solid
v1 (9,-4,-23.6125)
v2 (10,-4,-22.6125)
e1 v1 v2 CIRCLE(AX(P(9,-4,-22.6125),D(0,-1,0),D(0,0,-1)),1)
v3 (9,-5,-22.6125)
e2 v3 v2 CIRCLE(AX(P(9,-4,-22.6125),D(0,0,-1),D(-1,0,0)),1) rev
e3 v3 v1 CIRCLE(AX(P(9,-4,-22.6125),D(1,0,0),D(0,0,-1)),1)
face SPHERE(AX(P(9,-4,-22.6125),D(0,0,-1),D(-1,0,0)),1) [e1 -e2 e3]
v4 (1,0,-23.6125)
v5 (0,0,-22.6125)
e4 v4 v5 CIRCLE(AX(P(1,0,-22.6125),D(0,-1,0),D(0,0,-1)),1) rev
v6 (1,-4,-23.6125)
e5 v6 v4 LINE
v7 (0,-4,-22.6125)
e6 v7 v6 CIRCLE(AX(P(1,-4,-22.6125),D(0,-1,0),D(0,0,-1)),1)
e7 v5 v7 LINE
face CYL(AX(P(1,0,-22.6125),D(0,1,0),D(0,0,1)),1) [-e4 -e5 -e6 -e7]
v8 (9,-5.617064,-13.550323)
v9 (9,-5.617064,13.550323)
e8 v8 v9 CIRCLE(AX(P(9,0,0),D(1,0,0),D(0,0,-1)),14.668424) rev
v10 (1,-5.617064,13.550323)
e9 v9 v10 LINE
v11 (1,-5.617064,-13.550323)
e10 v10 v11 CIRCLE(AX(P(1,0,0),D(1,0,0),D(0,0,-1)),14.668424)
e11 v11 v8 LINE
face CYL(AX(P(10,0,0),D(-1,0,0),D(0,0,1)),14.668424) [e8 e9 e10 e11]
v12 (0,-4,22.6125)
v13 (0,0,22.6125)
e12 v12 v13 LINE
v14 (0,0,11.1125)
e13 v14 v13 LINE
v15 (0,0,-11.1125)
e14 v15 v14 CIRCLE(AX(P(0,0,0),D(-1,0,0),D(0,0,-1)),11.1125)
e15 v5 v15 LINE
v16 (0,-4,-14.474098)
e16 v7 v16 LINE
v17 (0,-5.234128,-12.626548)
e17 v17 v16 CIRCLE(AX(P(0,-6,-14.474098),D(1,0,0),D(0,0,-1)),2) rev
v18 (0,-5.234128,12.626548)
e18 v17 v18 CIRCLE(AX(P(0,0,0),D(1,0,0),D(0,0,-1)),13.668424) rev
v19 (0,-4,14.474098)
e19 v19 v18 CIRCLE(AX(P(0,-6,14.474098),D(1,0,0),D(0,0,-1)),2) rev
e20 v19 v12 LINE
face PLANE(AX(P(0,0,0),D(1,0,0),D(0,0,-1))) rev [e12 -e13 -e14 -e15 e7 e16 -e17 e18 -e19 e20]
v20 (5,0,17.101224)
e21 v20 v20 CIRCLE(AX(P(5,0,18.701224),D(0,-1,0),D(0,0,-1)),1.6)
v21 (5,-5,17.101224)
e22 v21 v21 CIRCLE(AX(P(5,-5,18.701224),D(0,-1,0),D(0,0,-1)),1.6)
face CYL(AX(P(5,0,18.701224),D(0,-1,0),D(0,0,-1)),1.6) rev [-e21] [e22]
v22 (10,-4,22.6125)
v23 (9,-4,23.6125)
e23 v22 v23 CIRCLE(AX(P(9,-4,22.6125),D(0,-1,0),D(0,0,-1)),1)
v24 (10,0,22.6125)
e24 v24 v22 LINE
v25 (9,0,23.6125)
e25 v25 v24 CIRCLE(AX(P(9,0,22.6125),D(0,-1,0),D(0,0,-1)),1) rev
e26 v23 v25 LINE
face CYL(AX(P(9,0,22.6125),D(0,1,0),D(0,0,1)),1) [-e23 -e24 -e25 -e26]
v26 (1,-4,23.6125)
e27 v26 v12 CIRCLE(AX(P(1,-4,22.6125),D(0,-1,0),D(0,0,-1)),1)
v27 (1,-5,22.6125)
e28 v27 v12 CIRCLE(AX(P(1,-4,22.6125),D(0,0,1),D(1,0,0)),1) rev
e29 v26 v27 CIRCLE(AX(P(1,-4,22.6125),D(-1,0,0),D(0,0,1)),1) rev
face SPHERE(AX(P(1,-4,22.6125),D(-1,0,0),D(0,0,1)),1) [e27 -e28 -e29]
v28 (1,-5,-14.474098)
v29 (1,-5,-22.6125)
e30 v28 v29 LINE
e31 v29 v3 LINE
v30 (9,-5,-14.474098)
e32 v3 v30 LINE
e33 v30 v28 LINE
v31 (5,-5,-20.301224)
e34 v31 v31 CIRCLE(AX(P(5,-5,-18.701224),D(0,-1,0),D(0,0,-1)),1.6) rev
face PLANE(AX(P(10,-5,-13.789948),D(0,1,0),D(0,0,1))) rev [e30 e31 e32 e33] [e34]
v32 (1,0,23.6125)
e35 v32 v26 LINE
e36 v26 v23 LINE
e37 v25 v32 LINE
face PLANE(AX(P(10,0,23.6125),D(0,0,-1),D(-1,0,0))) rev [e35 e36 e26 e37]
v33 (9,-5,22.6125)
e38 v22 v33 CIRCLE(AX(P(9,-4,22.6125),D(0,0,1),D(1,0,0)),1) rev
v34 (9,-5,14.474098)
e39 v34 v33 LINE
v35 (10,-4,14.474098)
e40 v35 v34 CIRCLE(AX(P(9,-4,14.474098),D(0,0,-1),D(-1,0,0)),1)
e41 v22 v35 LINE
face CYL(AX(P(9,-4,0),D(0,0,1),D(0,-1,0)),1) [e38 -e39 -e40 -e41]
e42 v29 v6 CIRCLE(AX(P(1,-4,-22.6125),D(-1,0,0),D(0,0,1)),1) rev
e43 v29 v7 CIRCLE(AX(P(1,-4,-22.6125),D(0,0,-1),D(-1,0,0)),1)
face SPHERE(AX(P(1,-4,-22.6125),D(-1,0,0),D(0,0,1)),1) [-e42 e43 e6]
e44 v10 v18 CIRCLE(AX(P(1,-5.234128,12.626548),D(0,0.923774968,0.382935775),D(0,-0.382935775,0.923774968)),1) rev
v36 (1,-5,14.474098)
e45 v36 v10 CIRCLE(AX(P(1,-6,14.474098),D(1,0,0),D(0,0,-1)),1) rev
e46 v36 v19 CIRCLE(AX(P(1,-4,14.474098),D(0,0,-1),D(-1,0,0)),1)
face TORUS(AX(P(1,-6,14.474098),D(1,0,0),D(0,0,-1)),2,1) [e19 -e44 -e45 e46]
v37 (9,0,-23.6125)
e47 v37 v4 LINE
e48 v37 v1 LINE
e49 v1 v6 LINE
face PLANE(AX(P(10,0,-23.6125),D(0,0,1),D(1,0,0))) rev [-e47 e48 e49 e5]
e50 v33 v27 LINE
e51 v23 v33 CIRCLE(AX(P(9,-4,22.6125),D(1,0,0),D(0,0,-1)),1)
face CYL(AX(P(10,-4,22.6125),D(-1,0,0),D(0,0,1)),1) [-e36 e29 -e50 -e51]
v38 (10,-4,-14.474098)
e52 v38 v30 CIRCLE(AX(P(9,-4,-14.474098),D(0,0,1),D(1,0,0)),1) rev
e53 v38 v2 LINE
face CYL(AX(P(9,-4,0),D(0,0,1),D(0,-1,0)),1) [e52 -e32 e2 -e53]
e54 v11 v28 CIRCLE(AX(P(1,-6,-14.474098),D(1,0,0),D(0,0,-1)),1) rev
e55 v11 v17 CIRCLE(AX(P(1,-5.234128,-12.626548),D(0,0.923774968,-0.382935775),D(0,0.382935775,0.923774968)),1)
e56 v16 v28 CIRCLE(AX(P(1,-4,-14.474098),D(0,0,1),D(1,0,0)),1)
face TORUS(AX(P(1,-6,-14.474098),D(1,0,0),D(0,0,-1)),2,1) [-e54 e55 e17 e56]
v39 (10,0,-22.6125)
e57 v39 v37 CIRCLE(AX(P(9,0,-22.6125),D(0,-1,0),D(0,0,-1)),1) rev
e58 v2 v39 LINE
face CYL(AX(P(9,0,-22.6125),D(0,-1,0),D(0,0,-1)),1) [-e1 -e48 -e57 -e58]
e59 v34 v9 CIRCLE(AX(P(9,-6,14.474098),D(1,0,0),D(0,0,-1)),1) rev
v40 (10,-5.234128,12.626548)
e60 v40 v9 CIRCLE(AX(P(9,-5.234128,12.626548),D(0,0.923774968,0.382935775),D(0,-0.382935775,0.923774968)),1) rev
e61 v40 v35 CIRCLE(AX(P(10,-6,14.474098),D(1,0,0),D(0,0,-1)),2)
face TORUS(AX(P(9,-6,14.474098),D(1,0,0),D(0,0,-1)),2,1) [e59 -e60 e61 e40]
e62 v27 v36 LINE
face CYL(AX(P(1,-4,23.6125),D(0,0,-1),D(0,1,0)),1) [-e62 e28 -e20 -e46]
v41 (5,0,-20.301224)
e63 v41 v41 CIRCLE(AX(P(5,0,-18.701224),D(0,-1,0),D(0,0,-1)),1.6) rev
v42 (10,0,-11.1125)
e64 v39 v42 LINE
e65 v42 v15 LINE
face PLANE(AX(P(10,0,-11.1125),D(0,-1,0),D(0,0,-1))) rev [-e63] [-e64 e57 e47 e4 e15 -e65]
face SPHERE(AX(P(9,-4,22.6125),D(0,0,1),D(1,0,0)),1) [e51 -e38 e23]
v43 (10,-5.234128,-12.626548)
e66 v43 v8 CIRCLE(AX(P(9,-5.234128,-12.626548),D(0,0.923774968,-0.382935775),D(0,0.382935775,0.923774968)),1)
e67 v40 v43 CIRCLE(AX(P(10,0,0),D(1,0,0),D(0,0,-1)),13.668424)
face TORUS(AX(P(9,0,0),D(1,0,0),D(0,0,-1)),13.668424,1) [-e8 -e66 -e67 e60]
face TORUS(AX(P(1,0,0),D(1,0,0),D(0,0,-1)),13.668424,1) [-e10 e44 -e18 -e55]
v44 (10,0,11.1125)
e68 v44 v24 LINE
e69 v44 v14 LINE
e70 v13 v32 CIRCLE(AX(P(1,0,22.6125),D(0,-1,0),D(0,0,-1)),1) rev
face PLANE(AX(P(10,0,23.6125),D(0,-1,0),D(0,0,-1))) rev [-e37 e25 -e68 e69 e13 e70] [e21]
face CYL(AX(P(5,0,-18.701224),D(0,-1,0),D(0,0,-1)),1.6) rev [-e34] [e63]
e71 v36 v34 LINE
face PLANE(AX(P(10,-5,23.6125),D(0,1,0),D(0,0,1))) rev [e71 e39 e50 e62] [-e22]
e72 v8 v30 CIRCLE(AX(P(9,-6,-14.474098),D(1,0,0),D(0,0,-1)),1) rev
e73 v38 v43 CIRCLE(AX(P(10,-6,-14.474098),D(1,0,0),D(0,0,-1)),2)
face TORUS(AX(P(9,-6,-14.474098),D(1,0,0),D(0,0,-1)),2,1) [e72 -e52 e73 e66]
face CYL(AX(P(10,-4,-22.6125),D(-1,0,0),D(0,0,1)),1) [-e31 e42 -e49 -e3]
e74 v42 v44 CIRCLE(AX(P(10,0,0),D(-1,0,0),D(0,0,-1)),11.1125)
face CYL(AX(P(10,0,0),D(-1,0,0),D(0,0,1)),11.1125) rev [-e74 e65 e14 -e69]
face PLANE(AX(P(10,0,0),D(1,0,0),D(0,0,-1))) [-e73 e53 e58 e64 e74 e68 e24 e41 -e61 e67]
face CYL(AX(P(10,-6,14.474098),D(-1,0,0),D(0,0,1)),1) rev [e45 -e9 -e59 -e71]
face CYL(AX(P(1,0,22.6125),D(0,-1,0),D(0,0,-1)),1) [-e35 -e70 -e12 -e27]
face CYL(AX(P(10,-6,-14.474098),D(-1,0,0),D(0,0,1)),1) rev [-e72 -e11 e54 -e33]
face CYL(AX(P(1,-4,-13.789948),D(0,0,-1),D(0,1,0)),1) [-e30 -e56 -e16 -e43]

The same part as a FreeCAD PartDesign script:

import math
import FreeCAD as App
import Part
import Sketcher


def edges_at(feature, points):
    """Names of the edges that pass closest to the given points."""
    edges = feature.Shape.Edges
    near = lambda p: min(range(len(edges)), key=lambda i: edges[i].distToShape(Part.Vertex(*p))[0])
    return sorted({f"Edge{near(p) + 1}" for p in points})

doc = App.newDocument("Part")
body = doc.addObject("PartDesign::Body", "Body")

# Sketch on YZ plane
sketch1 = doc.addObject("Sketcher::SketchObject", "Sketch")
body.addObject(sketch1)
sketch1.AttachmentSupport = (doc.YZ_Plane, [""])
sketch1.MapMode = "FlatFace"
sketch1.addGeometry([
    Part.LineSegment(App.Vector(0, 11, 0), App.Vector(0, 24, 0)),  # 0
    Part.LineSegment(App.Vector(0, 24, 0), App.Vector(-5, 24, 0)),  # 1
    Part.LineSegment(App.Vector(-5, 24, 0), App.Vector(-5, 14, 0)),  # 2
    Part.ArcOfCircle(Part.Circle(App.Vector(0, 0, 0), App.Vector(0, 0, 1), 15), math.radians(110), math.radians(250)),  # 3
    Part.LineSegment(App.Vector(-5, -14, 0), App.Vector(-5, -24, 0)),  # 4
    Part.LineSegment(App.Vector(-5, -24, 0), App.Vector(0, -24, 0)),  # 5
    Part.LineSegment(App.Vector(0, -24, 0), App.Vector(0, -11, 0)),  # 6
    Part.ArcOfCircle(Part.Circle(App.Vector(0, 0, 0), App.Vector(0, 0, 1), 11), math.radians(90), math.radians(270)),  # 7
], False)
sketch1.addConstraint([
    Sketcher.Constraint("Coincident", 0, 2, 1, 1),
    Sketcher.Constraint("Coincident", 1, 2, 2, 1),
    Sketcher.Constraint("Coincident", 2, 2, 3, 1),
    Sketcher.Constraint("Coincident", 3, 2, 4, 1),
    Sketcher.Constraint("Coincident", 4, 2, 5, 1),
    Sketcher.Constraint("Coincident", 5, 2, 6, 1),
    Sketcher.Constraint("Coincident", 6, 2, 7, 2),
    Sketcher.Constraint("Coincident", 7, 1, 0, 1),
    Sketcher.Constraint("Vertical", 0),
    Sketcher.Constraint("Horizontal", 1),
    Sketcher.Constraint("Vertical", 2),
    Sketcher.Constraint("Vertical", 4),
    Sketcher.Constraint("Horizontal", 5),
    Sketcher.Constraint("Vertical", 6),
    Sketcher.Constraint("Coincident", 3, 3, -1, 1),
    Sketcher.Constraint("Coincident", 7, 3, -1, 1),
    Sketcher.Constraint("Symmetric", 0, 2, 5, 2, -1, 1),
    Sketcher.Constraint("PointOnObject", 0, 2, -2),
    Sketcher.Constraint("Vertical", 2, 2, 3, 2),
    Sketcher.Constraint("DistanceX", 1, 2, 1, 1, 5.0),
    Sketcher.Constraint("DistanceY", 0, 1, 0, 2, 12.5),
    Sketcher.Constraint("Radius", 7, 11.1125),
    Sketcher.Constraint("Radius", 3, 14.668424),
])
pad1 = doc.addObject("PartDesign::Pad", "Pad")
body.addObject(pad1)
pad1.Profile = sketch1
pad1.Length = 10

# Sketch on XZ plane
sketch2 = doc.addObject("Sketcher::SketchObject", "Sketch001")
body.addObject(sketch2)
sketch2.AttachmentSupport = (doc.XZ_Plane, [""])
sketch2.MapMode = "FlatFace"
sketch2.AttachmentOffset = App.Placement(App.Vector(0, 0, 5), App.Rotation())
sketch2.addGeometry([
    Part.Circle(App.Vector(5, 18.7, 0), App.Vector(0, 0, 1), 1.6),
    Part.Circle(App.Vector(5, -18.7, 0), App.Vector(0, 0, 1), 1.6),
], False)
sketch2.addConstraint([
    Sketcher.Constraint("Equal", 0, 1),
    Sketcher.Constraint("Symmetric", 0, 3, 1, 3, -1),
    Sketcher.Constraint("Diameter", 0, 3.2),
    Sketcher.Constraint("DistanceX", -1, 1, 0, 3, 5.0),
    Sketcher.Constraint("DistanceY", -1, 1, 0, 3, 18.701224),
])
pocket1 = doc.addObject("PartDesign::Pocket", "Pocket")
body.addObject(pocket1)
pocket1.Profile = sketch2
pocket1.Type = "ThroughAll"
doc.recompute()

fillet = doc.addObject("PartDesign::Fillet", "Fillet")
body.addObject(fillet)
fillet.Base = (pocket1, edges_at(pocket1, [
    (0, -2.5, -23.613),
    (0, -5, -18.701),
    (0, -14.668, 0),
    (10, -2.5, -23.613),
    (5, -5, 13.79),
    (5, -5, 23.613),
    (5, -5, -23.613),
    (5, -5, -13.79),
    (10, -2.5, 23.613),
    (10, -5, 18.701),
    (10, -14.668, 0),
    (0, -5, 18.701),
    (10, -5, -18.701),
    (0, -2.5, 23.613),
]))
fillet.Radius = 1

doc.recompute()
